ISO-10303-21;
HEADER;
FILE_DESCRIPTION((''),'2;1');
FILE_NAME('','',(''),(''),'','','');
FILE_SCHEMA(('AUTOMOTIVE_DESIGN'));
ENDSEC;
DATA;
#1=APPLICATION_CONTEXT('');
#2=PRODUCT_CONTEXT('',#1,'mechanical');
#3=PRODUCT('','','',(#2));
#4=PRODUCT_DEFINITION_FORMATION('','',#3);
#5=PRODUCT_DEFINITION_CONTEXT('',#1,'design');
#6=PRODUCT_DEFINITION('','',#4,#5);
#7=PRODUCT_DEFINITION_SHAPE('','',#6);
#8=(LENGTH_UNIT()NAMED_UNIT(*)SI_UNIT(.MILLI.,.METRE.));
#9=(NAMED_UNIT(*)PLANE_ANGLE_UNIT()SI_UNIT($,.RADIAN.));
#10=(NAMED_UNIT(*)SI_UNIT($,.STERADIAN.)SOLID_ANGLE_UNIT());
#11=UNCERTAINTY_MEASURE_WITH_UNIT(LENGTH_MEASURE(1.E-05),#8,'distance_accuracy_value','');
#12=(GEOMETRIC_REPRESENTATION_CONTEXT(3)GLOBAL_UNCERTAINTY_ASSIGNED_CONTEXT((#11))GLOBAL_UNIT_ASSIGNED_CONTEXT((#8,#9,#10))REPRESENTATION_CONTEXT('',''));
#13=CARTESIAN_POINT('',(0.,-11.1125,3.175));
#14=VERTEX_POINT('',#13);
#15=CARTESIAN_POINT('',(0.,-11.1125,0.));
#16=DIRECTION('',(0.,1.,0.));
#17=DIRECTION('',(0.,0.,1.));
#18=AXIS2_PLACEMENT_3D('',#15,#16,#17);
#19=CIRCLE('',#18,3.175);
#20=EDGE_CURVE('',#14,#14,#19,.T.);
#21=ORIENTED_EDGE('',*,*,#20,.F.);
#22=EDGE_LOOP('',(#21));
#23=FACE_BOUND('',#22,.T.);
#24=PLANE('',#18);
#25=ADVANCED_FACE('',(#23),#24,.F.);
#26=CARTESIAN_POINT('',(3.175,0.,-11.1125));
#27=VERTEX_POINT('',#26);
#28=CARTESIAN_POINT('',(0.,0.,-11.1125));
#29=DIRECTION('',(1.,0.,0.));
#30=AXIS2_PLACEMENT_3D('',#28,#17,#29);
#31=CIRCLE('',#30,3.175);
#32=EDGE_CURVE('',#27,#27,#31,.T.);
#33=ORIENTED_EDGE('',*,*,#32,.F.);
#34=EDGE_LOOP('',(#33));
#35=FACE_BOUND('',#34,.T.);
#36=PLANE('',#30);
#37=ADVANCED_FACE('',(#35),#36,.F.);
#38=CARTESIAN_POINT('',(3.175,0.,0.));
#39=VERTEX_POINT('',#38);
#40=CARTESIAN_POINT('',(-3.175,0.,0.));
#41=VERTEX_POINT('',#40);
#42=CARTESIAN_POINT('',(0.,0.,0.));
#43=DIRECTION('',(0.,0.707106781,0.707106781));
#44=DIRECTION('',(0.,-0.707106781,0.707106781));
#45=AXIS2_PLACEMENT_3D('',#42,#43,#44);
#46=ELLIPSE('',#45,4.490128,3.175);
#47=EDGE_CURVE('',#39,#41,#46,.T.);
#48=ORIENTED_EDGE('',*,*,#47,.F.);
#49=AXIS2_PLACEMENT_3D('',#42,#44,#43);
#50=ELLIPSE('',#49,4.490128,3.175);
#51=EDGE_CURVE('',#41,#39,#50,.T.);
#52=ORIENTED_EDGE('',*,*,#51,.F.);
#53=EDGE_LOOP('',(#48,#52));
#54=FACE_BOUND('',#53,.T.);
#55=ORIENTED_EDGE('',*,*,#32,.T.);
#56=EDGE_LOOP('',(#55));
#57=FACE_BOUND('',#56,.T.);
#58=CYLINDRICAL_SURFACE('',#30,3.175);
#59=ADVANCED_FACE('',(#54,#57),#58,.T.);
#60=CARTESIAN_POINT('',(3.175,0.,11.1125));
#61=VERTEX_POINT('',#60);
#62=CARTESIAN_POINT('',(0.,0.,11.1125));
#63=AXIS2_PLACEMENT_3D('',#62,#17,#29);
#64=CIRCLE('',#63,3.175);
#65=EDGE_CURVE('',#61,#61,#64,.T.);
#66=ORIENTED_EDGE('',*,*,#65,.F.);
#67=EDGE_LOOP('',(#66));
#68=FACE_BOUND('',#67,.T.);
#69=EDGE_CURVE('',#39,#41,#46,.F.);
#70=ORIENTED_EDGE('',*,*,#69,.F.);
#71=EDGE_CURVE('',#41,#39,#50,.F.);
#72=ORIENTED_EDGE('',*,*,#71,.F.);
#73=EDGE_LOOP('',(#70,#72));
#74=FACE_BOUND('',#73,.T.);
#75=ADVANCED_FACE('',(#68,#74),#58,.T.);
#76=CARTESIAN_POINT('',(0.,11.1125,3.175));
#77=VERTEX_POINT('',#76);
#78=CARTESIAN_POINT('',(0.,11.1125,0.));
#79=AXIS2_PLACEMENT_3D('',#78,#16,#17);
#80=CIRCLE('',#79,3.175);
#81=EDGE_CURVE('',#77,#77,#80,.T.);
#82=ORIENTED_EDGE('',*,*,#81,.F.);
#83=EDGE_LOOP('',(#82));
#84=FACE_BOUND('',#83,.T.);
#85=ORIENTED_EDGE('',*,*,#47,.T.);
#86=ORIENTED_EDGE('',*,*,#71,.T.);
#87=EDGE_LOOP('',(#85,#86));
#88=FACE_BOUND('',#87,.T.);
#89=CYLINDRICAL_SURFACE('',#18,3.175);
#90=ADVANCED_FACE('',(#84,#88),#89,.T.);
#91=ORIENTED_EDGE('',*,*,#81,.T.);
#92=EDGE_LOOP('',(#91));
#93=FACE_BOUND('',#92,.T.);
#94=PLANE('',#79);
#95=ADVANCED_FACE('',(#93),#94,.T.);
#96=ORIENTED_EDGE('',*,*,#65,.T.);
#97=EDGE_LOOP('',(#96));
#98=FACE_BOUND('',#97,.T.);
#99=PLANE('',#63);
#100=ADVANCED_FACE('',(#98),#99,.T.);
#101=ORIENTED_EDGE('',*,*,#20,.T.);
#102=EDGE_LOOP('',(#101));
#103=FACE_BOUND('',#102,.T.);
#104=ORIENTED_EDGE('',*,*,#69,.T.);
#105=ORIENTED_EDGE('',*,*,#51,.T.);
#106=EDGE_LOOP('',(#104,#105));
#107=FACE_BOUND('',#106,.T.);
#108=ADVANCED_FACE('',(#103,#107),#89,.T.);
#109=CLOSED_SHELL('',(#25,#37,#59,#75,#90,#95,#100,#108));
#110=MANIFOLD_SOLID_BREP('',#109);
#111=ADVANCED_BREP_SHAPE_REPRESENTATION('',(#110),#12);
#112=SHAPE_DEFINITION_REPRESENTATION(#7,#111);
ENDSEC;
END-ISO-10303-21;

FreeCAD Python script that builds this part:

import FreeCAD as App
import Part
import Sketcher

V = App.Vector
Q = App.Units.Quantity

doc = App.newDocument("Part")
body = doc.addObject("PartDesign::Body", "Body")

sketch1 = doc.addObject("Sketcher::SketchObject", "Sketch")
body.addObject(sketch1)
sketch1.AttachmentSupport = (doc.XY_Plane, [""])
sketch1.MapMode = "FlatFace"
sketch1.addGeometry(Part.Circle(V(0, 0, 0), V(0, 0, 1), 3.175), False)
sketch1.addConstraint(Sketcher.Constraint("Coincident", 0, 3, -1, 1))
sketch1.addConstraint(Sketcher.Constraint("Diameter", 0, Q("0.25 in")))
pad1 = doc.addObject("PartDesign::Pad", "Pad")
body.addObject(pad1)
pad1.Profile = sketch1
pad1.Type = "TwoLengths"
pad1.Length = Q("0.4375 in")
pad1.Length2 = Q("0.4375 in")

sketch2 = doc.addObject("Sketcher::SketchObject", "Sketch001")
body.addObject(sketch2)
sketch2.AttachmentSupport = (doc.XZ_Plane, [""])
sketch2.MapMode = "FlatFace"
sketch2.addGeometry(Part.Circle(V(0, 0, 0), V(0, 0, 1), 3.175), False)
sketch2.addConstraint(Sketcher.Constraint("Coincident", 0, 3, -1, 1))
sketch2.addConstraint(Sketcher.Constraint("Diameter", 0, Q("0.25 in")))
pad2 = doc.addObject("PartDesign::Pad", "Pad001")
body.addObject(pad2)
pad2.Profile = sketch2
pad2.Type = "TwoLengths"
pad2.Length = Q("0.4375 in")
pad2.Length2 = Q("0.4375 in")
pad2.Reversed = True

doc.recompute()
